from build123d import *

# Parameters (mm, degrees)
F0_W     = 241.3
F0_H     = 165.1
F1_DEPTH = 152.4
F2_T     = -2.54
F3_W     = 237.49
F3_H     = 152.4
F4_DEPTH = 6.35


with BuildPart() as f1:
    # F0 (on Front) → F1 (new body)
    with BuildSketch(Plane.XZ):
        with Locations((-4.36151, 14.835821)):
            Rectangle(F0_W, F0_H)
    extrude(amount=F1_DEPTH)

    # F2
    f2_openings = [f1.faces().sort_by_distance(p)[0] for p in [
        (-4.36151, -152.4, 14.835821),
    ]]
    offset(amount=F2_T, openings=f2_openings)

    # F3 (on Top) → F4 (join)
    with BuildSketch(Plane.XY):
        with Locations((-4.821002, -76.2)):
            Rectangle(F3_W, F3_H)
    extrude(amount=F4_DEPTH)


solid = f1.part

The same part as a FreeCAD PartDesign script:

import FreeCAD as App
import Part
import Sketcher
from FreeCAD import Vector
Q = App.Units.Quantity


def faces_at(feature, points):
    """Names of the faces that lie closest to the given points."""
    faces = feature.Shape.Faces
    near = lambda p: min(range(len(faces)), key=lambda i: faces[i].distToShape(Part.Vertex(*p))[0])
    return sorted({f"Face{near(p) + 1}" for p in points})

doc = App.newDocument("Part")
body = doc.addObject("PartDesign::Body", "Body")

# Sketch on XZ plane
sketch1 = body.newObject("Sketcher::SketchObject", "Sketch")
sketch1.AttachmentSupport = (doc.getObject("XZ_Plane"), [""])
sketch1.MapMode = "FlatFace"
sketch1.addGeometry([
    Part.LineSegment(Vector(-125, 97, 0), Vector(-125, -68, 0)),
    Part.LineSegment(Vector(-125, -68, 0), Vector(116, -68, 0)),
    Part.LineSegment(Vector(116, -68, 0), Vector(116, 97, 0)),
    Part.LineSegment(Vector(116, 97, 0), Vector(-125, 97, 0)),
], False)
sketch1.addConstraint([
    Sketcher.Constraint("Coincident", 0, 2, 1, 1),
    Sketcher.Constraint("Coincident", 1, 2, 2, 1),
    Sketcher.Constraint("Coincident", 2, 2, 3, 1),
    Sketcher.Constraint("Coincident", 3, 2, 0, 1),
    Sketcher.Constraint("Vertical", 0),
    Sketcher.Constraint("Horizontal", 1),
    Sketcher.Constraint("Vertical", 2),
    Sketcher.Constraint("Horizontal", 3),
    Sketcher.Constraint("DistanceX", 1, 1, 1, 2, Q("9.5 in")),
    Sketcher.Constraint("DistanceY", 0, 2, 0, 1, Q("6.5 in")),
    Sketcher.Constraint("DistanceX", 0, 2, -1, 1, Q("125.01151 mm")),
    Sketcher.Constraint("DistanceY", 0, 2, -1, 1, Q("67.714179 mm")),
])
pad1 = body.newObject("PartDesign::Pad", "Pad")
pad1.Profile = sketch1
pad1.Length = Q("6 in")
doc.recompute()

thickness = body.newObject("PartDesign::Thickness", "Thickness")
thickness.Base = (pad1, faces_at(pad1, [(-4.362, -152.4, 14.836)]))
thickness.Value = Q("0.1 in")
thickness.Reversed = True
thickness.Join = "Arc"

# Sketch on XY plane
sketch2 = body.newObject("Sketcher::SketchObject", "Sketch001")
sketch2.AttachmentSupport = (doc.getObject("XY_Plane"), [""])
sketch2.MapMode = "FlatFace"
sketch2.addGeometry([
    Part.LineSegment(Vector(-124, 0, 0), Vector(-124, -152, 0)),
    Part.LineSegment(Vector(-124, -152, 0), Vector(114, -152, 0)),
    Part.LineSegment(Vector(114, -152, 0), Vector(114, 0, 0)),
    Part.LineSegment(Vector(114, 0, 0), Vector(-124, 0, 0)),
], False)
sketch2.addConstraint([
    Sketcher.Constraint("Coincident", 0, 2, 1, 1),
    Sketcher.Constraint("Coincident", 1, 2, 2, 1),
    Sketcher.Constraint("Coincident", 2, 2, 3, 1),
    Sketcher.Constraint("Coincident", 3, 2, 0, 1),
    Sketcher.Constraint("Vertical", 0),
    Sketcher.Constraint("Horizontal", 1),
    Sketcher.Constraint("Vertical", 2),
    Sketcher.Constraint("Horizontal", 3),
    Sketcher.Constraint("PointOnObject", 2, 2, -1),
    Sketcher.Constraint("DistanceY", 0, 2, 0, 1, Q("6 in")),
    Sketcher.Constraint("DistanceX", 1, 1, 1, 2, Q("9.35 in")),
    Sketcher.Constraint("DistanceX", 0, 2, -1, 1, Q("123.566002 mm")),
])
pad2 = body.newObject("PartDesign::Pad", "Pad001")
pad2.Profile = sketch2
pad2.Length = Q("0.25 in")

doc.recompute()
